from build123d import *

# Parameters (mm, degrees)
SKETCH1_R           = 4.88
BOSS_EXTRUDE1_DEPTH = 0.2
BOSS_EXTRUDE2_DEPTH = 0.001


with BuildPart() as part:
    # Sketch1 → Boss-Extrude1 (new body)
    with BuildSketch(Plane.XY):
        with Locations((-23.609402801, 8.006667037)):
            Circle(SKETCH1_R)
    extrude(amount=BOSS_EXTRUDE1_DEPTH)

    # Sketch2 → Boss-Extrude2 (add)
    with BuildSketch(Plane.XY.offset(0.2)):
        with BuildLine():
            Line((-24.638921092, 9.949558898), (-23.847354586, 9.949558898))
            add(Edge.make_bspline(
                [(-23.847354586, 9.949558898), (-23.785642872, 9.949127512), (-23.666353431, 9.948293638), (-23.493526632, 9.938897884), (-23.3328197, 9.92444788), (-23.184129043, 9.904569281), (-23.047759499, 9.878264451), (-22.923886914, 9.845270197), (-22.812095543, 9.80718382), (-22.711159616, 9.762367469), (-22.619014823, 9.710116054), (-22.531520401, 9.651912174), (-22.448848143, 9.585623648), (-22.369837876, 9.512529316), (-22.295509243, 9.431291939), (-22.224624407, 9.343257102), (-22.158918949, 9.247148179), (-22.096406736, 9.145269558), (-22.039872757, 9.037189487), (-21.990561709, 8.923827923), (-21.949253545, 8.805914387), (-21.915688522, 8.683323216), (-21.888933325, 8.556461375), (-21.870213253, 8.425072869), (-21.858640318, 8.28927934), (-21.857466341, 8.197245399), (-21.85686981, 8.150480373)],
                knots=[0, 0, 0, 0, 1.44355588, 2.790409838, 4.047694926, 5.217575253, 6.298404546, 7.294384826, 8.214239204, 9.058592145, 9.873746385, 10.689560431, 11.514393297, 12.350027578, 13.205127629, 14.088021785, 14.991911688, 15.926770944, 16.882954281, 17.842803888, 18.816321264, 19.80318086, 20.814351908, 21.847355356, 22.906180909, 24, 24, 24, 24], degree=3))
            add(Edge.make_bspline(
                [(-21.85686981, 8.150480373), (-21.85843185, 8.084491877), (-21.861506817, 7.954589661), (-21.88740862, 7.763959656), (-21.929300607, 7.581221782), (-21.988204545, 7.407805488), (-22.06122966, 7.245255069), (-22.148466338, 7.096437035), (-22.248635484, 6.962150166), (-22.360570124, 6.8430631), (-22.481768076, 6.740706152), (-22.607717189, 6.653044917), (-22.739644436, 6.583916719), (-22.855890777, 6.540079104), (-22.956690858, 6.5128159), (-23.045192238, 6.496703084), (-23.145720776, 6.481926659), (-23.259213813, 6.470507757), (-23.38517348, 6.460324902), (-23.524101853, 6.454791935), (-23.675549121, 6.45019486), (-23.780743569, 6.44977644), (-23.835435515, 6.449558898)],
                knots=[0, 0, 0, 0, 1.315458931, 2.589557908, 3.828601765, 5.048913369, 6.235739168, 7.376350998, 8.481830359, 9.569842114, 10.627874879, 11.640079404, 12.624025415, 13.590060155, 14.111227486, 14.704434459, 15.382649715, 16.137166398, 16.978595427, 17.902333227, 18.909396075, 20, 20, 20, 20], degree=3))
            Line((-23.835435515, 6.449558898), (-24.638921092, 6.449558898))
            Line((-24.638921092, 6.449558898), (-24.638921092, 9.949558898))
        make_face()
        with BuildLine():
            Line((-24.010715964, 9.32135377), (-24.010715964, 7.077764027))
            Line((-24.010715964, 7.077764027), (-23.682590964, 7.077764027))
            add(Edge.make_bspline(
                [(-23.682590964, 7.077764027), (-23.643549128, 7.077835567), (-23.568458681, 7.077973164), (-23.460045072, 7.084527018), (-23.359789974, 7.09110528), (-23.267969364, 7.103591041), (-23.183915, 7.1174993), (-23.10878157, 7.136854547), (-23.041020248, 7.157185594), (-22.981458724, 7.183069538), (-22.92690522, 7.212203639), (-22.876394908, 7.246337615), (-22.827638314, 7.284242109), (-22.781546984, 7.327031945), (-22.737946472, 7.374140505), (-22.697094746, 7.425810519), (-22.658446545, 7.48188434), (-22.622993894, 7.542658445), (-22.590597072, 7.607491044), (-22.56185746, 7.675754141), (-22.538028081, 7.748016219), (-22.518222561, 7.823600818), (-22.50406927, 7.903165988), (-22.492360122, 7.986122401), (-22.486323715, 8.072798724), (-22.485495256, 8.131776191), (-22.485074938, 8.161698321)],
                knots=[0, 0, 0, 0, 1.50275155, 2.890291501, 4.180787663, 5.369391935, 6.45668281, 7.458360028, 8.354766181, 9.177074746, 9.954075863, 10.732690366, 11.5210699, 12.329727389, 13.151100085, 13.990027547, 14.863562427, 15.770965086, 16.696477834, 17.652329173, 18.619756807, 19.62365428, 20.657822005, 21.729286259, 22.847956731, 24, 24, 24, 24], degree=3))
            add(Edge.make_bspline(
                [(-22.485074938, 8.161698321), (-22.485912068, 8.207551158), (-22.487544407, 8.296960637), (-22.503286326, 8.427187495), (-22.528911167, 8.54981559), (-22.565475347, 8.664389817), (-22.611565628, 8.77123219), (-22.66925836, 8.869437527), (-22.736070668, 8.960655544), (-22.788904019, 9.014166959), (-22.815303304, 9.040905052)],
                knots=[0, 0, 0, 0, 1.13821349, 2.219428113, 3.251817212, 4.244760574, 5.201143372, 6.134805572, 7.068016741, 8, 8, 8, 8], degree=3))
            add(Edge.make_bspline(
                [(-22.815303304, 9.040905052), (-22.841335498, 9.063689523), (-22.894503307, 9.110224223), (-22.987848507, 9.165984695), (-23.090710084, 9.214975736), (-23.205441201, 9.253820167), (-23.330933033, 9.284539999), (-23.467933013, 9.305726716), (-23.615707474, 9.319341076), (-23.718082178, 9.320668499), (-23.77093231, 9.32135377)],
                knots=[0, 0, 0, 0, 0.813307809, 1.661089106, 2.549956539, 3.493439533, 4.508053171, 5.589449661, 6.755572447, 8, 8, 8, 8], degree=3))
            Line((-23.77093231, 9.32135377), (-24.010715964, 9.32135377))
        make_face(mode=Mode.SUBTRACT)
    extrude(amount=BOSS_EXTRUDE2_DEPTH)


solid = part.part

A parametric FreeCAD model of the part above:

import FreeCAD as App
import Part
import Sketcher

V = App.Vector
Q = App.Units.Quantity

doc = App.newDocument("Part")
params = doc.addObject("Spreadsheet::Sheet", "Params")
for row, (alias, value) in enumerate([
    ("sketch1_diameter", "9.76 mm"),
    ("pad1_length", "0.2 mm"),
    ("pad2_length", "0.001 mm"),
], start=1):
    params.set(f"A{row}", alias)
    params.set(f"B{row}", "=" + value)
    params.setAlias(f"B{row}", alias)

body = doc.addObject("PartDesign::Body", "Body")

sketch1 = body.newObject("Sketcher::SketchObject", "Sketch")
sketch1.AttachmentSupport = (doc.getObject("XY_Plane"), [""])
sketch1.MapMode = "FlatFace"
sketch1.addGeometry(Part.Circle(V(-23.6, 8, 0), V(0, 0, 1), 4.9), False)
sketch1.addConstraint([
    Sketcher.Constraint("Diameter", 0, Q("9.76 mm")),
    Sketcher.Constraint("DistanceX", 0, 3, -1, 1, Q("23.609403 mm")),
    Sketcher.Constraint("DistanceY", -1, 1, 0, 3, Q("8.006667 mm")),
])
sketch1.setExpression("Constraints[0]", "Params.sketch1_diameter")
pad1 = body.newObject("PartDesign::Pad", "Pad")
pad1.Profile = sketch1
pad1.setExpression("Length", "Params.pad1_length")

sketch2 = body.newObject("Sketcher::SketchObject", "Sketch001")
sketch2.AttachmentSupport = (doc.getObject("XY_Plane"), [""])
sketch2.MapMode = "FlatFace"
sketch2.AttachmentOffset = App.Placement(V(0, 0, 0.2), App.Rotation())
sketch2.addGeometry([
    Part.LineSegment(V(-23.847355, 9.949559, 0), V(-24.638921, 9.949559, 0)),
    Part.LineSegment(V(-24.638921, 9.949559, 0), V(-24.638921, 6.449559, 0)),
    Part.LineSegment(V(-24.638921, 6.449559, 0), V(-23.835436, 6.449559, 0)),
    Part.BSplineCurve([V(-21.85687, 8.15048, 0), V(-21.858432, 8.084492, 0), V(-21.861507, 7.95459, 0), V(-21.887409, 7.76396, 0), V(-21.929301, 7.581222, 0), V(-21.988205, 7.407805, 0), V(-22.06123, 7.245255, 0), V(-22.148466, 7.096437, 0), V(-22.248635, 6.96215, 0), V(-22.36057, 6.843063, 0), V(-22.481768, 6.740706, 0), V(-22.607717, 6.653045, 0), V(-22.739644, 6.583917, 0), V(-22.855891, 6.540079, 0), V(-22.956691, 6.512816, 0), V(-23.045192, 6.496703, 0), V(-23.145721, 6.481927, 0), V(-23.259214, 6.470508, 0), V(-23.385173, 6.460325, 0), V(-23.524102, 6.454792, 0), V(-23.675549, 6.450195, 0), V(-23.780744, 6.449776, 0), V(-23.835436, 6.449559, 0)], [4, 1, 1, 1, 1, 1, 1, 1, 1, 1, 1, 1, 1, 1, 1, 1, 1, 1, 1, 1, 4], [0, 1.315458931, 2.589557908, 3.828601765, 5.048913369, 6.235739168, 7.376350998, 8.481830359, 9.569842114, 10.627874879, 11.640079404, 12.624025415, 13.590060155, 14.111227486, 14.704434459, 15.382649715, 16.137166398, 16.978595427, 17.902333227, 18.909396075, 20], False, 3, [1, 1, 1, 1, 1, 1, 1, 1, 1, 1, 1, 1, 1, 1, 1, 1, 1, 1, 1, 1, 1, 1, 1], False),
    Part.BSplineCurve([V(-23.847355, 9.949559, 0), V(-23.785643, 9.949128, 0), V(-23.666353, 9.948294, 0), V(-23.493527, 9.938898, 0), V(-23.33282, 9.924448, 0), V(-23.184129, 9.904569, 0), V(-23.047759, 9.878264, 0), V(-22.923887, 9.84527, 0), V(-22.812096, 9.807184, 0), V(-22.71116, 9.762367, 0), V(-22.619015, 9.710116, 0), V(-22.53152, 9.651912, 0), V(-22.448848, 9.585624, 0), V(-22.369838, 9.512529, 0), V(-22.295509, 9.431292, 0), V(-22.224624, 9.343257, 0), V(-22.158919, 9.247148, 0), V(-22.096407, 9.14527, 0), V(-22.039873, 9.037189, 0), V(-21.990562, 8.923828, 0), V(-21.949254, 8.805914, 0), V(-21.915689, 8.683323, 0), V(-21.888933, 8.556461, 0), V(-21.870213, 8.425073, 0), V(-21.85864, 8.289279, 0), V(-21.857466, 8.197245, 0), V(-21.85687, 8.15048, 0)], [4, 1, 1, 1, 1, 1, 1, 1, 1, 1, 1, 1, 1, 1, 1, 1, 1, 1, 1, 1, 1, 1, 1, 1, 4], [0, 1.44355588, 2.790409838, 4.047694926, 5.217575253, 6.298404546, 7.294384826, 8.214239204, 9.058592145, 9.873746385, 10.689560431, 11.514393297, 12.350027578, 13.205127629, 14.088021785, 14.991911688, 15.926770944, 16.882954281, 17.842803888, 18.816321264, 19.80318086, 20.814351908, 21.847355356, 22.906180909, 24], False, 3, [1, 1, 1, 1, 1, 1, 1, 1, 1, 1, 1, 1, 1, 1, 1, 1, 1, 1, 1, 1, 1, 1, 1, 1, 1, 1, 1], False),
    Part.LineSegment(V(-24.010716, 9.321354, 0), V(-23.770932, 9.321354, 0)),
    Part.BSplineCurve([V(-22.815303, 9.040905, 0), V(-22.841335, 9.06369, 0), V(-22.894503, 9.110224, 0), V(-22.987849, 9.165985, 0), V(-23.09071, 9.214976, 0), V(-23.205441, 9.25382, 0), V(-23.330933, 9.28454, 0), V(-23.467933, 9.305727, 0), V(-23.615707, 9.319341, 0), V(-23.718082, 9.320668, 0), V(-23.770932, 9.321354, 0)], [4, 1, 1, 1, 1, 1, 1, 1, 4], [0, 0.813307809, 1.661089106, 2.549956539, 3.493439533, 4.508053171, 5.589449661, 6.755572447, 8], False, 3, [1, 1, 1, 1, 1, 1, 1, 1, 1, 1, 1], False),
    Part.BSplineCurve([V(-22.485075, 8.161698, 0), V(-22.485912, 8.207551, 0), V(-22.487544, 8.296961, 0), V(-22.503286, 8.427187, 0), V(-22.528911, 8.549816, 0), V(-22.565475, 8.66439, 0), V(-22.611566, 8.771232, 0), V(-22.669258, 8.869438, 0), V(-22.736071, 8.960656, 0), V(-22.788904, 9.014167, 0), V(-22.815303, 9.040905, 0)], [4, 1, 1, 1, 1, 1, 1, 1, 4], [0, 1.13821349, 2.219428113, 3.251817212, 4.244760574, 5.201143372, 6.134805572, 7.068016741, 8], False, 3, [1, 1, 1, 1, 1, 1, 1, 1, 1, 1, 1], False),
    Part.BSplineCurve([V(-23.682591, 7.077764, 0), V(-23.643549, 7.077836, 0), V(-23.568459, 7.077973, 0), V(-23.460045, 7.084527, 0), V(-23.35979, 7.091105, 0), V(-23.267969, 7.103591, 0), V(-23.183915, 7.117499, 0), V(-23.108782, 7.136855, 0), V(-23.04102, 7.157186, 0), V(-22.981459, 7.18307, 0), V(-22.926905, 7.212204, 0), V(-22.876395, 7.246338, 0), V(-22.827638, 7.284242, 0), V(-22.781547, 7.327032, 0), V(-22.737946, 7.374141, 0), V(-22.697095, 7.425811, 0), V(-22.658447, 7.481884, 0), V(-22.622994, 7.542658, 0), V(-22.590597, 7.607491, 0), V(-22.561857, 7.675754, 0), V(-22.538028, 7.748016, 0), V(-22.518223, 7.823601, 0), V(-22.504069, 7.903166, 0), V(-22.49236, 7.986122, 0), V(-22.486324, 8.072799, 0), V(-22.485495, 8.131776, 0), V(-22.485075, 8.161698, 0)], [4, 1, 1, 1, 1, 1, 1, 1, 1, 1, 1, 1, 1, 1, 1, 1, 1, 1, 1, 1, 1, 1, 1, 1, 4], [0, 1.50275155, 2.890291501, 4.180787663, 5.369391935, 6.45668281, 7.458360028, 8.354766181, 9.177074746, 9.954075863, 10.732690366, 11.5210699, 12.329727389, 13.151100085, 13.990027547, 14.863562427, 15.770965086, 16.696477834, 17.652329173, 18.619756807, 19.62365428, 20.657822005, 21.729286259, 22.847956731, 24], False, 3, [1, 1, 1, 1, 1, 1, 1, 1, 1, 1, 1, 1, 1, 1, 1, 1, 1, 1, 1, 1, 1, 1, 1, 1, 1, 1, 1], False),
    Part.LineSegment(V(-23.682591, 7.077764, 0), V(-24.010716, 7.077764, 0)),
    Part.LineSegment(V(-24.010716, 7.077764, 0), V(-24.010716, 9.321354, 0)),
], False)
sketch2.addConstraint([
    Sketcher.Constraint("Block", 3),
    Sketcher.Constraint("Block", 4),
    Sketcher.Constraint("Block", 6),
    Sketcher.Constraint("Block", 7),
    Sketcher.Constraint("Block", 8),
    Sketcher.Constraint("Coincident", 0, 2, 1, 1),
    Sketcher.Constraint("Coincident", 1, 2, 2, 1),
    Sketcher.Constraint("Coincident", 2, 2, 3, 2),
    Sketcher.Constraint("Coincident", 4, 1, 0, 1),
    Sketcher.Constraint("Coincident", 5, 2, 6, 2),
    Sketcher.Constraint("Coincident", 8, 1, 9, 1),
    Sketcher.Constraint("Coincident", 9, 2, 10, 1),
    Sketcher.Constraint("Coincident", 10, 2, 5, 1),
    Sketcher.Constraint("Horizontal", 0),
    Sketcher.Constraint("Vertical", 1),
    Sketcher.Constraint("Horizontal", 2),
    Sketcher.Constraint("Horizontal", 5),
    Sketcher.Constraint("Horizontal", 9),
    Sketcher.Constraint("Vertical", 10),
    Sketcher.Constraint("DistanceX", 0, 2, 0, 1, Q("0.791567 mm")),
    Sketcher.Constraint("DistanceX", 5, 1, 5, 2, Q("0.239784 mm")),
])
pad2 = body.newObject("PartDesign::Pad", "Pad001")
pad2.Profile = sketch2
pad2.setExpression("Length", "Params.pad2_length")

doc.recompute()
